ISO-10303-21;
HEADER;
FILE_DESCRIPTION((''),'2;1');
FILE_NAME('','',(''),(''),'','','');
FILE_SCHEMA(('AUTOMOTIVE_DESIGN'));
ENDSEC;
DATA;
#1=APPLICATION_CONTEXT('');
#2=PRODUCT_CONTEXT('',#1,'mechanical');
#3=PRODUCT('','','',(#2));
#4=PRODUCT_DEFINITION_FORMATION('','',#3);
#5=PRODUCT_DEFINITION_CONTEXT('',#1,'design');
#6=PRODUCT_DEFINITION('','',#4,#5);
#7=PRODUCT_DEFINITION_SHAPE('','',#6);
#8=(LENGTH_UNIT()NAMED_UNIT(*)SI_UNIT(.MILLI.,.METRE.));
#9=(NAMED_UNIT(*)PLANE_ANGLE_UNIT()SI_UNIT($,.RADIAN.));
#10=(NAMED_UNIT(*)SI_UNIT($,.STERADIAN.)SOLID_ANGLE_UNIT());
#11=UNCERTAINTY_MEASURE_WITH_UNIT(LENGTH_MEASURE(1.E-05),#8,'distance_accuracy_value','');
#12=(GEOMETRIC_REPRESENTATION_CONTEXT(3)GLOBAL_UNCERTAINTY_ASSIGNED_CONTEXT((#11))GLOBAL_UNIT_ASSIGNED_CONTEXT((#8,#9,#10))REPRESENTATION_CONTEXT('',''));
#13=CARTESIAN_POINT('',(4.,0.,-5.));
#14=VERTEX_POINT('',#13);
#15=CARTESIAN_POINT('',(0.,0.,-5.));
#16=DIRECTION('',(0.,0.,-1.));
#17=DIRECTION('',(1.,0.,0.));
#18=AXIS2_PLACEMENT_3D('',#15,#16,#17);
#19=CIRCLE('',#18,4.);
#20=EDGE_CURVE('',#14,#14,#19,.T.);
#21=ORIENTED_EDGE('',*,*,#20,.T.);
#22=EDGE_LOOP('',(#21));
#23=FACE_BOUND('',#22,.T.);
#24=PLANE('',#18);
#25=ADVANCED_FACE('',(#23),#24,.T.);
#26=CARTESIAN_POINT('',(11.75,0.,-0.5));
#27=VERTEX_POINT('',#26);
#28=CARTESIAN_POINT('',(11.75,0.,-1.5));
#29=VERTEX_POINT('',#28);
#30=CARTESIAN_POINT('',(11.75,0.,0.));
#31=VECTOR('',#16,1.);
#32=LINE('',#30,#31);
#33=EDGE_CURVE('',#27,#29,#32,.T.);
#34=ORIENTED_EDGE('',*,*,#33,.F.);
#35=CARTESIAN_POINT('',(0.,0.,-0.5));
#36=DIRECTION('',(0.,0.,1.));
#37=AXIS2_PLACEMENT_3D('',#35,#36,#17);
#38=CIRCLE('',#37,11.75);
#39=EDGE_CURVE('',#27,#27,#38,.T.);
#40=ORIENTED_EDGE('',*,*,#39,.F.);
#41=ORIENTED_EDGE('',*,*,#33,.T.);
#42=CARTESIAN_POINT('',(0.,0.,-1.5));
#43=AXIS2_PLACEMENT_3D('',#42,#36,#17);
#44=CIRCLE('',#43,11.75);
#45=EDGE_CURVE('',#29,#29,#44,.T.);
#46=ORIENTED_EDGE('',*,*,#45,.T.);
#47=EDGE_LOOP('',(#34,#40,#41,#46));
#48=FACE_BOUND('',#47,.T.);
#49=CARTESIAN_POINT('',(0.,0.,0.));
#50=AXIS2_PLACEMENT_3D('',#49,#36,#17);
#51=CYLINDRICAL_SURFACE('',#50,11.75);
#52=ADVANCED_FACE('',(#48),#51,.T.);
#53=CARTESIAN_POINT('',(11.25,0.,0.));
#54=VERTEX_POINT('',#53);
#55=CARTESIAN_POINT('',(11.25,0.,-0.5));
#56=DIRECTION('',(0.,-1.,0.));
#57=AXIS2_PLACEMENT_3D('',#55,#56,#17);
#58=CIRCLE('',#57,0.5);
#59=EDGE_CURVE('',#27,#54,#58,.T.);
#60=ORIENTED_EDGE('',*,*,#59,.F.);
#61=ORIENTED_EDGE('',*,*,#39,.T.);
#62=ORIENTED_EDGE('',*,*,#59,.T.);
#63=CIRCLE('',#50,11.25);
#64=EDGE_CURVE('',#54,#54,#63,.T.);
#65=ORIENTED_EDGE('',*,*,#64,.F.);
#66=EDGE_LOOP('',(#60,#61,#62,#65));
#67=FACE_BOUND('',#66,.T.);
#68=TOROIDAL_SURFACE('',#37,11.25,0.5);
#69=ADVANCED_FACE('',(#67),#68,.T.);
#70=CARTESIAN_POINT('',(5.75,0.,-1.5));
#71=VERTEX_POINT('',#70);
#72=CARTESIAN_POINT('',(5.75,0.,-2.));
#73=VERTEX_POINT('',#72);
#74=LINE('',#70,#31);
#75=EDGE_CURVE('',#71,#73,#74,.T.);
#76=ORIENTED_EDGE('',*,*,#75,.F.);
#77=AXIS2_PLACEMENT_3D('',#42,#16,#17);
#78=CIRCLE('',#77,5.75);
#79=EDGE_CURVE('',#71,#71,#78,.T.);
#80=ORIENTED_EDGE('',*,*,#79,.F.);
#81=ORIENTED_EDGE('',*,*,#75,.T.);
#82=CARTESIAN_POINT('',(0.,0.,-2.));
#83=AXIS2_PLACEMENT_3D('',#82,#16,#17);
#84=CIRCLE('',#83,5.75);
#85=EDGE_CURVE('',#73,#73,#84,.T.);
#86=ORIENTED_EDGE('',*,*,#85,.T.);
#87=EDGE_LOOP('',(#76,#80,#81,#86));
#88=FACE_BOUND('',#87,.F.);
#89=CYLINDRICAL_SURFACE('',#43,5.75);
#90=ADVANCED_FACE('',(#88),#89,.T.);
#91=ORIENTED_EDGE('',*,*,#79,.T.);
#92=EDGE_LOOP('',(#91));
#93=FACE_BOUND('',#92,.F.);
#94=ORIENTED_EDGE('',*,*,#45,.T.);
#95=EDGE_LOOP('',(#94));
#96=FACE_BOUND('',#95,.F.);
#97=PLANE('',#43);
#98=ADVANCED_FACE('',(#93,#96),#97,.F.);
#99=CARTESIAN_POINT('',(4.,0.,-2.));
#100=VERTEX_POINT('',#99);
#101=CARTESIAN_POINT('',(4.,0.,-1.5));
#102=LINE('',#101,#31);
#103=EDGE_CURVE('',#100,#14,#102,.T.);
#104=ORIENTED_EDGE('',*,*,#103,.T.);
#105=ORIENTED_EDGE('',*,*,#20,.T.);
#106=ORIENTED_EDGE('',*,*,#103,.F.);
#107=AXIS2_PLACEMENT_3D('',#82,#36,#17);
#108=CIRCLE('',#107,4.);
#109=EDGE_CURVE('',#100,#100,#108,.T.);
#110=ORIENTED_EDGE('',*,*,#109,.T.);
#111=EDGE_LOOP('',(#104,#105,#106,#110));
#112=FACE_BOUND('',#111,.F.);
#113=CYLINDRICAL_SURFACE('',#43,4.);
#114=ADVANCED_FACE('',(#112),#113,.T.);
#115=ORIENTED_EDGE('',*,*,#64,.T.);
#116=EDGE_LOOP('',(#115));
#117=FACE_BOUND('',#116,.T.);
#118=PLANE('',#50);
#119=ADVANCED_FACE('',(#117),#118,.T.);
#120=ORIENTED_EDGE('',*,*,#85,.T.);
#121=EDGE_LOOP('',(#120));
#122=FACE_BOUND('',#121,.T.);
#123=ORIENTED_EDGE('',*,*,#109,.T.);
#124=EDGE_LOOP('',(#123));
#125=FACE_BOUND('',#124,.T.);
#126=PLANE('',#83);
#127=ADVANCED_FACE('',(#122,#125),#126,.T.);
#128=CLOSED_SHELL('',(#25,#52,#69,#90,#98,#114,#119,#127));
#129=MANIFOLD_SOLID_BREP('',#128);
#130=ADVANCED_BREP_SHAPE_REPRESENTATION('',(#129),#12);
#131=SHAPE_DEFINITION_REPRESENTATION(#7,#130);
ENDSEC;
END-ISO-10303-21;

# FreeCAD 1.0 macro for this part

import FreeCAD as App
import Part
import Sketcher

V = App.Vector
Q = App.Units.Quantity


def edges_at(feature, points):
    """Names of the edges that pass closest to the given points."""
    edges = feature.Shape.Edges
    near = lambda p: min(range(len(edges)), key=lambda i: edges[i].distToShape(Part.Vertex(*p))[0])
    return sorted({f"Edge{near(p) + 1}" for p in points})

doc = App.newDocument("Part")
body = doc.addObject("PartDesign::Body", "Body")

# Sketch on XY plane
sketch1 = body.newObject("Sketcher::SketchObject", "Sketch")
sketch1.AttachmentSupport = (doc.getObject("XY_Plane"), [""])
sketch1.MapMode = "FlatFace"
sketch1.addGeometry(Part.Circle(V(0, 0, 0), V(0, 0, 1), 12), False)
sketch1.addConstraint(Sketcher.Constraint("Coincident", 0, 3, -1, 1))
sketch1.addConstraint(Sketcher.Constraint("Diameter", 0, Q("23.5 mm")))
pad1 = body.newObject("PartDesign::Pad", "Pad")
pad1.Profile = sketch1
pad1.Length = 1.5
pad1.Reversed = True
doc.recompute()

fillet = body.newObject("PartDesign::Fillet", "Fillet")
fillet.Base = (pad1, edges_at(pad1, [(-11.75, 0, 0)]))
fillet.Radius = 0.5

# Sketch on XY plane
sketch2 = body.newObject("Sketcher::SketchObject", "Sketch001")
sketch2.AttachmentSupport = (doc.getObject("XY_Plane"), [""])
sketch2.MapMode = "FlatFace"
sketch2.AttachmentOffset = App.Placement(V(0, 0, -1.5), App.Rotation())
sketch2.addGeometry(Part.Circle(V(0, 0, 0), V(0, 0, 1), 4), False)
sketch2.addConstraint(Sketcher.Constraint("Coincident", 0, 3, -1, 1))
sketch2.addConstraint(Sketcher.Constraint("Diameter", 0, Q("8 mm")))
pad2 = body.newObject("PartDesign::Pad", "Pad001")
pad2.Profile = sketch2
pad2.Length = 3.5
pad2.Reversed = True

# Sketch on XY plane
sketch3 = body.newObject("Sketcher::SketchObject", "Sketch002")
sketch3.AttachmentSupport = (doc.getObject("XY_Plane"), [""])
sketch3.MapMode = "FlatFace"
sketch3.AttachmentOffset = App.Placement(V(0, 0, -1.5), App.Rotation())
sketch3.addGeometry(Part.Circle(V(0, 0, 0), V(0, 0, 1), 6), False)
sketch3.addConstraint(Sketcher.Constraint("Coincident", 0, 3, -1, 1))
sketch3.addConstraint(Sketcher.Constraint("Diameter", 0, Q("11.5 mm")))
pad3 = body.newObject("PartDesign::Pad", "Pad002")
pad3.Profile = sketch3
pad3.Length = 0.5
pad3.Reversed = True

doc.recompute()
